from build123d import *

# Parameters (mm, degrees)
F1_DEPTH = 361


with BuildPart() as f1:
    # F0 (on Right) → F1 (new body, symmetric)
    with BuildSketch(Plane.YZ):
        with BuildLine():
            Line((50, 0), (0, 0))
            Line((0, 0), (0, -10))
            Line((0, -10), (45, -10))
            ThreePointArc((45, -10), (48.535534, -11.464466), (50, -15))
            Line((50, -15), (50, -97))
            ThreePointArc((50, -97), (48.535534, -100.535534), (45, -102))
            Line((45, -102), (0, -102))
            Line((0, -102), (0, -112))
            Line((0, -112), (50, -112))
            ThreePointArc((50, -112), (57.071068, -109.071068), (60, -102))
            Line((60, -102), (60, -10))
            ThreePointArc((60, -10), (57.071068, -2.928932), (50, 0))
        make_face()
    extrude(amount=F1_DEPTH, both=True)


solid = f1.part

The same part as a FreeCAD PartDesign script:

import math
import FreeCAD as App
import Part
import Sketcher

V = App.Vector

doc = App.newDocument("Part")
params = doc.addObject("Spreadsheet::Sheet", "Params")
for row, (alias, value) in enumerate([
    ("sketch1_radius", "5 mm"),
    ("sketch1_radius2", "9.999999 mm"),
    ("sketch1_width", "50 mm"),
    ("sketch1_height", "82 mm"),
    ("pad1_length", "722 mm"),
], start=1):
    params.set(f"A{row}", alias)
    params.set(f"B{row}", "=" + value)
    params.setAlias(f"B{row}", alias)

body = doc.addObject("PartDesign::Body", "Body")

sketch1 = doc.addObject("Sketcher::SketchObject", "Sketch")
body.addObject(sketch1)
sketch1.AttachmentSupport = (doc.YZ_Plane, [""])
sketch1.MapMode = "FlatFace"
sketch1.addGeometry(Part.LineSegment(V(50, 0, 0), V(0, 0, 0)), False)
sketch1.addGeometry(Part.LineSegment(V(0, 0, 0), V(0, -10, 0)), False)
sketch1.addGeometry(Part.LineSegment(V(0, -10, 0), V(45, -10, 0)), False)
sketch1.addGeometry(Part.ArcOfCircle(Part.Circle(V(45, -15, 0), V(0, 0, 1), 5), math.radians(0), math.radians(90)), False)
sketch1.addGeometry(Part.LineSegment(V(50, -15, 0), V(50, -97, 0)), False)
sketch1.addGeometry(Part.ArcOfCircle(Part.Circle(V(45, -97, 0), V(0, 0, 1), 5), math.radians(-90), math.radians(0)), False)
sketch1.addGeometry(Part.LineSegment(V(45, -102, 0), V(0, -102, 0)), False)
sketch1.addGeometry(Part.LineSegment(V(0, -102, 0), V(0, -112, 0)), False)
sketch1.addGeometry(Part.LineSegment(V(0, -112, 0), V(50, -112, 0)), False)
sketch1.addGeometry(Part.ArcOfCircle(Part.Circle(V(50, -102, 0), V(0, 0, 1), 10), math.radians(-90), math.radians(0)), False)
sketch1.addGeometry(Part.LineSegment(V(60, -102, 0), V(60, -10, 0)), False)
sketch1.addGeometry(Part.ArcOfCircle(Part.Circle(V(50, -10, 0), V(0, 0, 1), 10), math.radians(0), math.radians(90)), False)
sketch1.addConstraint(Sketcher.Constraint("Coincident", 0, 2, 1, 1))
sketch1.addConstraint(Sketcher.Constraint("Coincident", 1, 2, 2, 1))
sketch1.addConstraint(Sketcher.Constraint("Tangent", 2, 2, 3, 2))
sketch1.addConstraint(Sketcher.Constraint("Tangent", 3, 1, 4, 1))
sketch1.addConstraint(Sketcher.Constraint("Tangent", 4, 2, 5, 2))
sketch1.addConstraint(Sketcher.Constraint("Tangent", 5, 1, 6, 1))
sketch1.addConstraint(Sketcher.Constraint("Coincident", 6, 2, 7, 1))
sketch1.addConstraint(Sketcher.Constraint("Coincident", 7, 2, 8, 1))
sketch1.addConstraint(Sketcher.Constraint("Tangent", 8, 2, 9, 1))
sketch1.addConstraint(Sketcher.Constraint("Tangent", 9, 2, 10, 1))
sketch1.addConstraint(Sketcher.Constraint("Tangent", 10, 2, 11, 1))
sketch1.addConstraint(Sketcher.Constraint("Tangent", 11, 2, 0, 1))
sketch1.addConstraint(Sketcher.Constraint("Horizontal", 0))
sketch1.addConstraint(Sketcher.Constraint("Vertical", 1))
sketch1.addConstraint(Sketcher.Constraint("Horizontal", 2))
sketch1.addConstraint(Sketcher.Constraint("Vertical", 4))
sketch1.addConstraint(Sketcher.Constraint("Horizontal", 6))
sketch1.addConstraint(Sketcher.Constraint("Vertical", 7))
sketch1.addConstraint(Sketcher.Constraint("Horizontal", 8))
sketch1.addConstraint(Sketcher.Constraint("Vertical", 10))
sketch1.addConstraint(Sketcher.Constraint("Coincident", 0, 2, -1, 1))
sketch1.addConstraint(Sketcher.Constraint("Equal", 3, 5))
sketch1.addConstraint(Sketcher.Constraint("Equal", 9, 11))
sketch1.addConstraint(Sketcher.Constraint("PointOnObject", 6, 2, -2))
sketch1.addConstraint(Sketcher.Constraint("Horizontal", 11, 3, 1, 2))
sketch1.addConstraint(Sketcher.Constraint("Horizontal", 9, 3, 5, 1))
sketch1.addConstraint(Sketcher.Constraint("Vertical", 11, 3, 3, 1))
sketch1.addConstraint(Sketcher.Constraint("Radius", 3, 5.0))
sketch1.addConstraint(Sketcher.Constraint("Radius", 9, 9.999999))
sketch1.addConstraint(Sketcher.Constraint("DistanceX", 0, 2, 0, 1, 50.0))
sketch1.addConstraint(Sketcher.Constraint("DistanceY", 4, 2, 4, 1, 82.0))
sketch1.setExpression("Constraints[27]", "Params.sketch1_radius")
sketch1.setExpression("Constraints[28]", "Params.sketch1_radius2")
sketch1.setExpression("Constraints[29]", "Params.sketch1_width")
sketch1.setExpression("Constraints[30]", "Params.sketch1_height")
pad1 = doc.addObject("PartDesign::Pad", "Pad")
body.addObject(pad1)
pad1.Profile = sketch1
pad1.setExpression("Length", "Params.pad1_length")
pad1.Midplane = True

doc.recompute()
